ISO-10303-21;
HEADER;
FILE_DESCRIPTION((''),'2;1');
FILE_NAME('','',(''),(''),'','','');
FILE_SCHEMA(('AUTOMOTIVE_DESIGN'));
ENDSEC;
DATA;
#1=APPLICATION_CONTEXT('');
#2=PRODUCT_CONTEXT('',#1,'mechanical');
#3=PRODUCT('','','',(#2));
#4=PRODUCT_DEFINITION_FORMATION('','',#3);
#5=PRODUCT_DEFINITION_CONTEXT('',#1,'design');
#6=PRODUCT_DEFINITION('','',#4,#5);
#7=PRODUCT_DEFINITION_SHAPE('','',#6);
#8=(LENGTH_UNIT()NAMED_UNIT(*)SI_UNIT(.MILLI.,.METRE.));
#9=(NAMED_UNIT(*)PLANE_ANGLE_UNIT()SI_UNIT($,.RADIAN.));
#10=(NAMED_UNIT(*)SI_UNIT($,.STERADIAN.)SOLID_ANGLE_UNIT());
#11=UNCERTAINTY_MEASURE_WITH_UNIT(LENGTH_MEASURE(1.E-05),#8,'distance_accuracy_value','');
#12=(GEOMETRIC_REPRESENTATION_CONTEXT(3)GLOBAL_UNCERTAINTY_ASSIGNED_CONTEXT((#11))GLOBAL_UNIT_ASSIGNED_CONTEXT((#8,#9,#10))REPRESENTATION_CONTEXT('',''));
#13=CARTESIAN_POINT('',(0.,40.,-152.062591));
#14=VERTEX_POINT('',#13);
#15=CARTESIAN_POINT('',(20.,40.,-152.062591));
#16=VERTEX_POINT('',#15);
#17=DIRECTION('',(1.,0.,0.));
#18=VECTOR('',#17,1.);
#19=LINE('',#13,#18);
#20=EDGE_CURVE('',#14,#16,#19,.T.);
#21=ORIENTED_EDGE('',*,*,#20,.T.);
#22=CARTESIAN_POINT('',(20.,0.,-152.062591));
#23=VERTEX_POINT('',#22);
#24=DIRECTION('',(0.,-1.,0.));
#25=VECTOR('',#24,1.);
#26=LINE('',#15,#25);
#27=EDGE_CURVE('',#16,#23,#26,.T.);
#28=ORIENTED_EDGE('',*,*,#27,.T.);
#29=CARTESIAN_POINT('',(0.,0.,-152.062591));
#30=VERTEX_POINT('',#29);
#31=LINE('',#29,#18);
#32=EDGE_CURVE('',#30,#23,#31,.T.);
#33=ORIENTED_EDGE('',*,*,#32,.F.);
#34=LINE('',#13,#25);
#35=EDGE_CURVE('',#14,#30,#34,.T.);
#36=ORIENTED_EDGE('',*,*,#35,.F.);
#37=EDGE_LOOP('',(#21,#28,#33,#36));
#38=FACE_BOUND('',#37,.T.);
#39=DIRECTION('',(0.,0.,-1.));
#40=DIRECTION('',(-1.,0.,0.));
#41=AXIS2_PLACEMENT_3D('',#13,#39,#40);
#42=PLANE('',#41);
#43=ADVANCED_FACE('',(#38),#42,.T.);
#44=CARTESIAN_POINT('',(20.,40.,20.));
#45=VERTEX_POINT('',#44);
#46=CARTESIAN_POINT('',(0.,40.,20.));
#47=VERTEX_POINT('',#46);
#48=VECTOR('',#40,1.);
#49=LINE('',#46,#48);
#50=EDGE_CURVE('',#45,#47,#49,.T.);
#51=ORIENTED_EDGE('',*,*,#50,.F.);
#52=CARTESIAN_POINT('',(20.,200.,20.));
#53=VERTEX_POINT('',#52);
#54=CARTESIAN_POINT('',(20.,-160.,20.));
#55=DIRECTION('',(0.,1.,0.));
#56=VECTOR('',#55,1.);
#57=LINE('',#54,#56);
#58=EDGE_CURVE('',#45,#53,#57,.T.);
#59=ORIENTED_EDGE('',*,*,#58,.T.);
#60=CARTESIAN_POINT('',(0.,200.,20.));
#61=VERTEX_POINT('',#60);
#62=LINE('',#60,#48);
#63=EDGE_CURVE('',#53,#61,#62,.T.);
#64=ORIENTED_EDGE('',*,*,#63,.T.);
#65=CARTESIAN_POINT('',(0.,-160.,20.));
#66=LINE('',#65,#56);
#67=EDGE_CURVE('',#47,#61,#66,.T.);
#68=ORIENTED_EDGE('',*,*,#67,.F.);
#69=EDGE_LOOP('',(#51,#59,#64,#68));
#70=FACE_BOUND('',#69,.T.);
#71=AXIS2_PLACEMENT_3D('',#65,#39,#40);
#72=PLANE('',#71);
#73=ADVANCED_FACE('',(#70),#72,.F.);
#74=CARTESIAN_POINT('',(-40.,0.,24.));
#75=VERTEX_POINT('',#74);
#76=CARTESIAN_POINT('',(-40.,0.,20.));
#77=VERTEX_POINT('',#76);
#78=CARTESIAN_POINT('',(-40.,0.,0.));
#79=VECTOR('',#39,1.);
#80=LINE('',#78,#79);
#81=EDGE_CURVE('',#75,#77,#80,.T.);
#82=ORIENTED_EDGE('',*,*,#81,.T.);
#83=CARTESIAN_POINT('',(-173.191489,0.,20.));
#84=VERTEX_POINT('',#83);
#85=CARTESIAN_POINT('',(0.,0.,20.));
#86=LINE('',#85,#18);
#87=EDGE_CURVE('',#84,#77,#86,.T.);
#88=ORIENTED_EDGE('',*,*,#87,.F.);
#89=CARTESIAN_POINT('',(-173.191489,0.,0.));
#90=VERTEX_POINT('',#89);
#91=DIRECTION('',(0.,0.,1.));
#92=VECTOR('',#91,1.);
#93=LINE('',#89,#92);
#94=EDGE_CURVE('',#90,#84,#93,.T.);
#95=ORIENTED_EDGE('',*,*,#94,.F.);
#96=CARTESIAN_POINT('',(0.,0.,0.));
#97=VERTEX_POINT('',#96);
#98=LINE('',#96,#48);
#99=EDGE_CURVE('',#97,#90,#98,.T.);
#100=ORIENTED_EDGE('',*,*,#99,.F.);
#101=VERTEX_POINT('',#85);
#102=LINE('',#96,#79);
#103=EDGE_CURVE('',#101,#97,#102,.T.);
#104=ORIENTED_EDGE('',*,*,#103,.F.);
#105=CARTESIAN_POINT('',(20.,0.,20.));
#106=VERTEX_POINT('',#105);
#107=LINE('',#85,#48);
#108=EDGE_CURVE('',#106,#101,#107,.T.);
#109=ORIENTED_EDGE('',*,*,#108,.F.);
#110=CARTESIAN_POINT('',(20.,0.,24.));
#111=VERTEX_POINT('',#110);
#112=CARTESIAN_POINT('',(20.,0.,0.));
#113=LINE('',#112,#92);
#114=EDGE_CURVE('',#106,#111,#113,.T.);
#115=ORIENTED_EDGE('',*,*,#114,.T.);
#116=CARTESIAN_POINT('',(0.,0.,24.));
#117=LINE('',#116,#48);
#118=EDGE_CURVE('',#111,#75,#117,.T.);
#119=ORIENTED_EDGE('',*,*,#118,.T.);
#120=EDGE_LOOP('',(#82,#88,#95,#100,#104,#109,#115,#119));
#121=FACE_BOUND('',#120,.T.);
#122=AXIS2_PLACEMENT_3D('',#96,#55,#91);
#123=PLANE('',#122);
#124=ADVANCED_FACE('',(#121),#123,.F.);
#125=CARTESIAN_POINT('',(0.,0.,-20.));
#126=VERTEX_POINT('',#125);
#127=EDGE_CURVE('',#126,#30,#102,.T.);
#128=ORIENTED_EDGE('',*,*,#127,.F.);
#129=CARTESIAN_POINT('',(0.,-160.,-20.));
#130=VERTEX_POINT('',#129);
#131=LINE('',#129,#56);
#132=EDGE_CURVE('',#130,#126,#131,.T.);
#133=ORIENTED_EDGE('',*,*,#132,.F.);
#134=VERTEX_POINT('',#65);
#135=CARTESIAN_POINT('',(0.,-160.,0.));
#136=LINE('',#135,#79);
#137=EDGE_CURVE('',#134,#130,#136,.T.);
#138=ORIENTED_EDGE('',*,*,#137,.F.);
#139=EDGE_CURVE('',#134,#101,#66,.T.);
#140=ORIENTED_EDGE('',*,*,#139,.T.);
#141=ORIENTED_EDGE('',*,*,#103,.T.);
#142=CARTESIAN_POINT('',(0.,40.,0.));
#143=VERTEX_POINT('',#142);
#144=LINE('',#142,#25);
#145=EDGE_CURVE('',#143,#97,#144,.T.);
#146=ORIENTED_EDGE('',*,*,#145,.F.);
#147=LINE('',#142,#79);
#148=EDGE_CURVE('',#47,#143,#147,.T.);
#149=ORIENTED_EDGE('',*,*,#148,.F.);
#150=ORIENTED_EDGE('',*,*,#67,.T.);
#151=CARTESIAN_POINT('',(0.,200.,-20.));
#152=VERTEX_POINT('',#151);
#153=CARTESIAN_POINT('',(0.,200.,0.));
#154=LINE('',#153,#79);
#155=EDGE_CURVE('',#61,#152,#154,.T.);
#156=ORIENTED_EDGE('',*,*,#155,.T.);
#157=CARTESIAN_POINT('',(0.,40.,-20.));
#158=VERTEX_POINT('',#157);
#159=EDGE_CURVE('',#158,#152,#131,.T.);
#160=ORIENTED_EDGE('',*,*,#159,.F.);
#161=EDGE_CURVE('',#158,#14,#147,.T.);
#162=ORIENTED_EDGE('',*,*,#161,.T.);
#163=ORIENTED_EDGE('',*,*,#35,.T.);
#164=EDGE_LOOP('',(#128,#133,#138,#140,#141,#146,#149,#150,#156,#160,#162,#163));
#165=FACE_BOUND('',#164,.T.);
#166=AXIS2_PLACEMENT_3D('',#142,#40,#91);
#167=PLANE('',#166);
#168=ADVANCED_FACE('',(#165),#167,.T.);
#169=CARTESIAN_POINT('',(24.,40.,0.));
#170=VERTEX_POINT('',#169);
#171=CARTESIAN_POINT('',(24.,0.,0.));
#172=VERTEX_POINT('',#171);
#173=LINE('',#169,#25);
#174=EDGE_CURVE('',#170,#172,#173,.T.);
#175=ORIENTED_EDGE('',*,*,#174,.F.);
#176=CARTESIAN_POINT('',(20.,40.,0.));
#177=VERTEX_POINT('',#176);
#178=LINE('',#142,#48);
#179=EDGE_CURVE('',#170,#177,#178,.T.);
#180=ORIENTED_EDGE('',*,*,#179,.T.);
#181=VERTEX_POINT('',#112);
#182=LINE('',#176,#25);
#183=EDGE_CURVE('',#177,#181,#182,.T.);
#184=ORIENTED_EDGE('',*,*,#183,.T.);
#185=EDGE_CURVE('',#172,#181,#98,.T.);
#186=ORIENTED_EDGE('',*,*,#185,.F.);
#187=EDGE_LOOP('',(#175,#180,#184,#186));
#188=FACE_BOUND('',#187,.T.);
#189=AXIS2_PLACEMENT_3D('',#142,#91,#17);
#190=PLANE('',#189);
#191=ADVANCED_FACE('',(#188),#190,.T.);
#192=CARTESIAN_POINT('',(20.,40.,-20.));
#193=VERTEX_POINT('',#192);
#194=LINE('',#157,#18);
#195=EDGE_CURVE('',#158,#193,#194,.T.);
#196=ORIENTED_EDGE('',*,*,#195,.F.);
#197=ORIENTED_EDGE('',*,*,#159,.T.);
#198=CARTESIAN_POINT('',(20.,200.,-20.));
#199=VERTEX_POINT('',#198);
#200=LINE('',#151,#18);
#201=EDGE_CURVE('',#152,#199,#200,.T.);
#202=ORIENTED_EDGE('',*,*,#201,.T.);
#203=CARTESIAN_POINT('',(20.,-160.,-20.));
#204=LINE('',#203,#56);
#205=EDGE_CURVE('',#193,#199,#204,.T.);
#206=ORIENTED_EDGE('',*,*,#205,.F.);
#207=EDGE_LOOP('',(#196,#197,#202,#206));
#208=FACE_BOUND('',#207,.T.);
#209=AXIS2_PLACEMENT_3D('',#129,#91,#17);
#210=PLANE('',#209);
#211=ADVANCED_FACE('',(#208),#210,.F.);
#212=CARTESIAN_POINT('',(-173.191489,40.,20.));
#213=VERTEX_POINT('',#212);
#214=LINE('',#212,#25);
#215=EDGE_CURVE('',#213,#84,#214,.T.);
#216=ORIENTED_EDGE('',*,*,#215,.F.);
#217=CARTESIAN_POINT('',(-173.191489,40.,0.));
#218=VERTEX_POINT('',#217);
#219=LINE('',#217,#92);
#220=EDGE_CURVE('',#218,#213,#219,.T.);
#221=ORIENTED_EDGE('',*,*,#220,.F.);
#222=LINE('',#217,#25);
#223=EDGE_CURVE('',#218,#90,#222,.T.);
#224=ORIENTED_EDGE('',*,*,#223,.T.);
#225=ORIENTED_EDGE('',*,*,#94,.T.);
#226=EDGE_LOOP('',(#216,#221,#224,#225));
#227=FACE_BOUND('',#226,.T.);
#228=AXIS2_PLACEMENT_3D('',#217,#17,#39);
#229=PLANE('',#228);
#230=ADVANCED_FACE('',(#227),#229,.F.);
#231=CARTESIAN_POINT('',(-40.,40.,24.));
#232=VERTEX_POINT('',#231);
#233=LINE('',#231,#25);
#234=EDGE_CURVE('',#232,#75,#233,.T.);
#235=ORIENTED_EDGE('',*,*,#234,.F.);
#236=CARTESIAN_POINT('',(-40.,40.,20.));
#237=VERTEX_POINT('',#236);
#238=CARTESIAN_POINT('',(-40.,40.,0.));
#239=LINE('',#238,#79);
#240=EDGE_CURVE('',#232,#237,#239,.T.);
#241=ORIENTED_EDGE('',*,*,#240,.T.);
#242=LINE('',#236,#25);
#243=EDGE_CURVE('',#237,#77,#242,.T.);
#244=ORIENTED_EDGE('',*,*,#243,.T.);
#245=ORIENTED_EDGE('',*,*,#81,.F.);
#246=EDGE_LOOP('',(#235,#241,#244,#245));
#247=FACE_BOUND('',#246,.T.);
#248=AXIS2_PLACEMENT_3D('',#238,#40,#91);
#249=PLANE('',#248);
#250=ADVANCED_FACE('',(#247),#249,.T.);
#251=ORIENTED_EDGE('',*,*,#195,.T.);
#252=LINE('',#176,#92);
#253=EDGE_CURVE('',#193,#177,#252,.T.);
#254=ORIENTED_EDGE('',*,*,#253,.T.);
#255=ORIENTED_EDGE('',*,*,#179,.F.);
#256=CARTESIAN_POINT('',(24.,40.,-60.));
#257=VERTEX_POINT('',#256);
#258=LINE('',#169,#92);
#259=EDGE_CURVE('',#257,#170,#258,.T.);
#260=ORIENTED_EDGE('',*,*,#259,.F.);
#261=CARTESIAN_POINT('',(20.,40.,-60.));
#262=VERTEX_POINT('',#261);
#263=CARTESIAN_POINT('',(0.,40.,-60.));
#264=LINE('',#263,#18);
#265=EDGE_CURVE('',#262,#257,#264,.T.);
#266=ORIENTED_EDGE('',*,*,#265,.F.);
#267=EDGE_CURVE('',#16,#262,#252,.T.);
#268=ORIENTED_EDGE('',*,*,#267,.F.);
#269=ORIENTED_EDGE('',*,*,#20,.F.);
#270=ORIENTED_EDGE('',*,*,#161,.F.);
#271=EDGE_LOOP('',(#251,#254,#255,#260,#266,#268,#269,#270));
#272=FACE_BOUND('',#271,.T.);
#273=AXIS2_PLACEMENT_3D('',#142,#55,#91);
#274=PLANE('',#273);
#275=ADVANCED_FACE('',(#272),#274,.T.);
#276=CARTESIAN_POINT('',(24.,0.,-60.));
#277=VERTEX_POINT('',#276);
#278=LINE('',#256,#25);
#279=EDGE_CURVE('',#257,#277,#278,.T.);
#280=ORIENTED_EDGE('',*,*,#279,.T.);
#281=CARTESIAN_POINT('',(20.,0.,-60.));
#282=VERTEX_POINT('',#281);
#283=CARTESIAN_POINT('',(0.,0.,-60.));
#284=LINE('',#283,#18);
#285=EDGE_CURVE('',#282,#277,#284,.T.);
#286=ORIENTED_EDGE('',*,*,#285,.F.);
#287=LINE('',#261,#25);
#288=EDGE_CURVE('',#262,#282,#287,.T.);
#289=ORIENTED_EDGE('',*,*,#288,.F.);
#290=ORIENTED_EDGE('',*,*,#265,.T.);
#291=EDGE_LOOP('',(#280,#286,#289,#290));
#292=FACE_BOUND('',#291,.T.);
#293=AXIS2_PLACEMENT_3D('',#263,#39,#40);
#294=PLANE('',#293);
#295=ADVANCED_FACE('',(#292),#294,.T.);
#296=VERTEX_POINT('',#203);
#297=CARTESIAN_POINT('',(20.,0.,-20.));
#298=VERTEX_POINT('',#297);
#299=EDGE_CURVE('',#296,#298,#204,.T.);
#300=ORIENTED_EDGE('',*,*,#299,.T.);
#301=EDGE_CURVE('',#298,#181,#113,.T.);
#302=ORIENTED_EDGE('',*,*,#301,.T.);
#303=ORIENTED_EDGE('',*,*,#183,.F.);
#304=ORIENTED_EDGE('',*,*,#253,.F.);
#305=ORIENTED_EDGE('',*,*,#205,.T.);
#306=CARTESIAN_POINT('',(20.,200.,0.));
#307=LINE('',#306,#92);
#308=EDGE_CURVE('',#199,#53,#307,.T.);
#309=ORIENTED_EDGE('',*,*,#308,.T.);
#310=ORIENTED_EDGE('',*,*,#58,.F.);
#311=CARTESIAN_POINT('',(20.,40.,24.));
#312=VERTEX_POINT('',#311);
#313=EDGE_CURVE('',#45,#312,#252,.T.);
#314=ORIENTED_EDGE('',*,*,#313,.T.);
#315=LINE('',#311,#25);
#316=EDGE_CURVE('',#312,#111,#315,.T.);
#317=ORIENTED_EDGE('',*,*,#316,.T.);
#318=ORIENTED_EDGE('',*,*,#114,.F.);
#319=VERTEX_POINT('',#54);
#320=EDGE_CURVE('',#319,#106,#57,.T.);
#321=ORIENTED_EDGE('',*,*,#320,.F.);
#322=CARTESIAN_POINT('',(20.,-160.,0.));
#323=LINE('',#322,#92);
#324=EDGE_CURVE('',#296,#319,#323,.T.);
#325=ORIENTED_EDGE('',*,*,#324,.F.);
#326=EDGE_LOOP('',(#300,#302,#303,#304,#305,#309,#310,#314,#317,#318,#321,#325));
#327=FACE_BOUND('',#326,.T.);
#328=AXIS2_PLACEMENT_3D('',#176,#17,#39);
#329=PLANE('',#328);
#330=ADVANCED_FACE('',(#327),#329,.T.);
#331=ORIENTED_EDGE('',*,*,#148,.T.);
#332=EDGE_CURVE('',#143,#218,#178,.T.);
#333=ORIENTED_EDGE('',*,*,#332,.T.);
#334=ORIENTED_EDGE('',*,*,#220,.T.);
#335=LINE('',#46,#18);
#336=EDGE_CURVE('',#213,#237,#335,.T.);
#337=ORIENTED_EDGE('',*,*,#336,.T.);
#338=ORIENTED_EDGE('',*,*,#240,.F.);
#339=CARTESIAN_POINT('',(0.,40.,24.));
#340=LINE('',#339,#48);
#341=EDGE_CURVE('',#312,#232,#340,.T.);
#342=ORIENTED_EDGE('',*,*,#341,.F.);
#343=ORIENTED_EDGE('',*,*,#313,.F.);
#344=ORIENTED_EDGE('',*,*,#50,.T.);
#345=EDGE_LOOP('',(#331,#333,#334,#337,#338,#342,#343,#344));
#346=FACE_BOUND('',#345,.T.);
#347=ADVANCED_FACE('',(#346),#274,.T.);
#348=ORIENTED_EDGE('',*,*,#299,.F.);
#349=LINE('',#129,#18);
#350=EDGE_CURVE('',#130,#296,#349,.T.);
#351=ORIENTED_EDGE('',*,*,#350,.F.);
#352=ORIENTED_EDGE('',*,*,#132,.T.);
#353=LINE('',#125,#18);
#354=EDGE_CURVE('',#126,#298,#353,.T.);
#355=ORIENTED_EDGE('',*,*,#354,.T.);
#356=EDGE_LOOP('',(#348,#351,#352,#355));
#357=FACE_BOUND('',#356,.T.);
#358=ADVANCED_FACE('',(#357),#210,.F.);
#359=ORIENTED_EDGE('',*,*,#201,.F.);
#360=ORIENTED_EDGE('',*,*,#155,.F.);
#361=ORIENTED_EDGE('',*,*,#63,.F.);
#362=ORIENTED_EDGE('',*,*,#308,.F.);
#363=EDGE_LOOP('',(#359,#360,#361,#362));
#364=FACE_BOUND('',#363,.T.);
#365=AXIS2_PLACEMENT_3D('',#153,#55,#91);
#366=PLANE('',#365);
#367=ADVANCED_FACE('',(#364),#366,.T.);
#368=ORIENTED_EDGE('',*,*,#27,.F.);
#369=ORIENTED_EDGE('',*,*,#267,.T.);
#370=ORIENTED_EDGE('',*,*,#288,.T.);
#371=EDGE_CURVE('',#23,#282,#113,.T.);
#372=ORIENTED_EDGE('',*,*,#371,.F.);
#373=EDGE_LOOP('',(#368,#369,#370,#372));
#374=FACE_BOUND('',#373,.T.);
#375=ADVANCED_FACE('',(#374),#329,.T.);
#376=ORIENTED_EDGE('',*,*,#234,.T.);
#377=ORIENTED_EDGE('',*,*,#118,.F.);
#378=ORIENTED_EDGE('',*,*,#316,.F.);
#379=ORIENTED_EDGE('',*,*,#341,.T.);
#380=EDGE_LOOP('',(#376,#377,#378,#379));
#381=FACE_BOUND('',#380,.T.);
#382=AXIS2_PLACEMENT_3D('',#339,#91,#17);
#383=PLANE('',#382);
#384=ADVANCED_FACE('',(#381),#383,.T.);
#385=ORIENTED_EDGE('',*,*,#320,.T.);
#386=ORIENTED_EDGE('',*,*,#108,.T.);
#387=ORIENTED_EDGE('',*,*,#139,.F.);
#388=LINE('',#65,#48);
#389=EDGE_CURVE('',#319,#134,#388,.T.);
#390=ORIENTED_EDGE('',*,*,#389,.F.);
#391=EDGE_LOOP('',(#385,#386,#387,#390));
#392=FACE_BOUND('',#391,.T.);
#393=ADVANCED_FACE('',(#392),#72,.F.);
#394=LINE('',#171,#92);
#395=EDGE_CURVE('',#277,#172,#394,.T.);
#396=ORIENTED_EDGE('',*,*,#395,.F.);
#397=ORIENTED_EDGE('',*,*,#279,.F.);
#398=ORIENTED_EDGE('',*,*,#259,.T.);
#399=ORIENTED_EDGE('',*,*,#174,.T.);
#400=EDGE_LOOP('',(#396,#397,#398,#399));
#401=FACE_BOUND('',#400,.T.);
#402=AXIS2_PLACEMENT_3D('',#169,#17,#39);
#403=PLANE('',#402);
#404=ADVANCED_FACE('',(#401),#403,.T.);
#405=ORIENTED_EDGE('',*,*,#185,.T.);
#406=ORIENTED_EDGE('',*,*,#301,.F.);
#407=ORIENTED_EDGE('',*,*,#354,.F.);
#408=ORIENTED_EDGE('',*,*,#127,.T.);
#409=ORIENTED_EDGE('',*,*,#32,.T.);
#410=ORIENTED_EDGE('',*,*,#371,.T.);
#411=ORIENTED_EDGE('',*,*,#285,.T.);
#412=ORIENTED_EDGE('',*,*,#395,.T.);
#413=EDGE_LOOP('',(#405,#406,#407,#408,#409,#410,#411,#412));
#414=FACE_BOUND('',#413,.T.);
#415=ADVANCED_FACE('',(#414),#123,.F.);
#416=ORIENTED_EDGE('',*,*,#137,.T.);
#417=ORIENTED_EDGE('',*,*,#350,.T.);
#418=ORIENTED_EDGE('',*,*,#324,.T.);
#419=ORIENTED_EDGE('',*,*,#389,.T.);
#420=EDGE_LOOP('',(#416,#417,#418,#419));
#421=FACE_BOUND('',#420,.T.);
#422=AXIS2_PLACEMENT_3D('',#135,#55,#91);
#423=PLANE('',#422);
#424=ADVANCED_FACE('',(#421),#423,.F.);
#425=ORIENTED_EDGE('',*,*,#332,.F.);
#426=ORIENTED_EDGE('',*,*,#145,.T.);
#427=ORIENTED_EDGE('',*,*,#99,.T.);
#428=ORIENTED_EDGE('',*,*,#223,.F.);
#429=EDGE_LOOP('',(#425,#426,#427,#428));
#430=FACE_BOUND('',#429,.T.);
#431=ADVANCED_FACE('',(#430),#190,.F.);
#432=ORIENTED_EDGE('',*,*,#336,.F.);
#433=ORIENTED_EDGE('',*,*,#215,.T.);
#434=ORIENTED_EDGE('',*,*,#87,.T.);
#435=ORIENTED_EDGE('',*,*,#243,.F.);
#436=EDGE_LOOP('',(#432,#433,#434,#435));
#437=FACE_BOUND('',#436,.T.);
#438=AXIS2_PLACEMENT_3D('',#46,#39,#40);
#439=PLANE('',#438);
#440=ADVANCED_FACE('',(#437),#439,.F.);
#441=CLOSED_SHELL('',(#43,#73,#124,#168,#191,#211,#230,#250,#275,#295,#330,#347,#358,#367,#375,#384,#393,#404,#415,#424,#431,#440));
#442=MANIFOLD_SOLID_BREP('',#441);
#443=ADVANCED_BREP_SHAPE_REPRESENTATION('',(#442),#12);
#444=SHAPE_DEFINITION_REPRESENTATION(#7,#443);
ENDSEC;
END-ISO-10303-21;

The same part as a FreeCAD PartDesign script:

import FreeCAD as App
import Part
import Sketcher
from FreeCAD import Vector

doc = App.newDocument("Part")
body = doc.addObject("PartDesign::Body", "Body")

# Sketch on XZ plane
sketch1 = body.newObject("Sketcher::SketchObject", "Sketch")
sketch1.AttachmentSupport = (doc.getObject("XZ_Plane"), [""])
sketch1.MapMode = "FlatFace"
sketch1.addGeometry(Part.LineSegment(Vector(0, -152.1, 0), Vector(0, 0, 0)), False)
sketch1.addGeometry(Part.LineSegment(Vector(0, 0, 0), Vector(-173.2, 0, 0)), False)
sketch1.addGeometry(Part.LineSegment(Vector(-173.2, 0, 0), Vector(-173.2, 20, 0)), False)
sketch1.addGeometry(Part.LineSegment(Vector(-173.2, 20, 0), Vector(-40, 20, 0)), False)
sketch1.addGeometry(Part.LineSegment(Vector(-40, 20, 0), Vector(-40, 24, 0)), False)
sketch1.addGeometry(Part.LineSegment(Vector(-40, 24, 0), Vector(20, 24, 0)), False)
sketch1.addGeometry(Part.LineSegment(Vector(20, 24, 0), Vector(20, 0, 0)), False)
sketch1.addGeometry(Part.LineSegment(Vector(20, 0, 0), Vector(24, 0, 0)), False)
sketch1.addGeometry(Part.LineSegment(Vector(24, 0, 0), Vector(24, -60, 0)), False)
sketch1.addGeometry(Part.LineSegment(Vector(24, -60, 0), Vector(20, -60, 0)), False)
sketch1.addGeometry(Part.LineSegment(Vector(20, -60, 0), Vector(20, -152.1, 0)), False)
sketch1.addGeometry(Part.LineSegment(Vector(20, -152.1, 0), Vector(0, -152.1, 0)), False)
sketch1.addConstraint(Sketcher.Constraint("Coincident", 0, 2, 1, 1))
sketch1.addConstraint(Sketcher.Constraint("Coincident", 1, 2, 2, 1))
sketch1.addConstraint(Sketcher.Constraint("Coincident", 2, 2, 3, 1))
sketch1.addConstraint(Sketcher.Constraint("Coincident", 3, 2, 4, 1))
sketch1.addConstraint(Sketcher.Constraint("Coincident", 4, 2, 5, 1))
sketch1.addConstraint(Sketcher.Constraint("Coincident", 5, 2, 6, 1))
sketch1.addConstraint(Sketcher.Constraint("Coincident", 6, 2, 7, 1))
sketch1.addConstraint(Sketcher.Constraint("Coincident", 7, 2, 8, 1))
sketch1.addConstraint(Sketcher.Constraint("Coincident", 8, 2, 9, 1))
sketch1.addConstraint(Sketcher.Constraint("Coincident", 9, 2, 10, 1))
sketch1.addConstraint(Sketcher.Constraint("Coincident", 10, 2, 11, 1))
sketch1.addConstraint(Sketcher.Constraint("Coincident", 11, 2, 0, 1))
sketch1.addConstraint(Sketcher.Constraint("Vertical", 0))
sketch1.addConstraint(Sketcher.Constraint("Horizontal", 1))
sketch1.addConstraint(Sketcher.Constraint("Vertical", 2))
sketch1.addConstraint(Sketcher.Constraint("Horizontal", 3))
sketch1.addConstraint(Sketcher.Constraint("Vertical", 4))
sketch1.addConstraint(Sketcher.Constraint("Horizontal", 5))
sketch1.addConstraint(Sketcher.Constraint("Vertical", 6))
sketch1.addConstraint(Sketcher.Constraint("Horizontal", 7))
sketch1.addConstraint(Sketcher.Constraint("Vertical", 8))
sketch1.addConstraint(Sketcher.Constraint("Horizontal", 9))
sketch1.addConstraint(Sketcher.Constraint("Vertical", 10))
sketch1.addConstraint(Sketcher.Constraint("Horizontal", 11))
sketch1.addConstraint(Sketcher.Constraint("Coincident", 0, 2, -1, 1))
sketch1.addConstraint(Sketcher.Constraint("PointOnObject", 6, 2, -1))
sketch1.addConstraint(Sketcher.Constraint("Vertical", 6, 2, 9, 2))
sketch1.addConstraint(Sketcher.Constraint("Equal", 11, 2))
sketch1.addConstraint(Sketcher.Constraint("Equal", 9, 4))
sketch1.addConstraint(Sketcher.Constraint("Equal", 5, 8))
sketch1.addConstraint(Sketcher.Constraint("DistanceX", 5, 1, 5, 2, 60.0))
sketch1.addConstraint(Sketcher.Constraint("DistanceX", 7, 1, 7, 2, 4.0))
sketch1.addConstraint(Sketcher.Constraint("DistanceX", 11, 2, 11, 1, 20.0))
sketch1.addConstraint(Sketcher.Constraint("DistanceX", 1, 2, 1, 1, 173.191489))
sketch1.addConstraint(Sketcher.Constraint("DistanceY", 0, 1, 0, 2, 152.062591))
pad1 = body.newObject("PartDesign::Pad", "Pad")
pad1.Profile = sketch1
pad1.Length = 40
pad1.Reversed = True

# Sketch on XZ plane
sketch2 = body.newObject("Sketcher::SketchObject", "Sketch001")
sketch2.AttachmentSupport = (doc.getObject("XZ_Plane"), [""])
sketch2.MapMode = "FlatFace"
sketch2.addGeometry(Part.LineSegment(Vector(0, 20, 0), Vector(20, 20, 0)), False)
sketch2.addGeometry(Part.LineSegment(Vector(20, 20, 0), Vector(20, -20, 0)), False)
sketch2.addGeometry(Part.LineSegment(Vector(20, -20, 0), Vector(0, -20, 0)), False)
sketch2.addGeometry(Part.LineSegment(Vector(0, -20, 0), Vector(0, 20, 0)), False)
sketch2.addConstraint(Sketcher.Constraint("Coincident", 0, 2, 1, 1))
sketch2.addConstraint(Sketcher.Constraint("Coincident", 1, 2, 2, 1))
sketch2.addConstraint(Sketcher.Constraint("Coincident", 2, 2, 3, 1))
sketch2.addConstraint(Sketcher.Constraint("Coincident", 3, 2, 0, 1))
sketch2.addConstraint(Sketcher.Constraint("Horizontal", 0))
sketch2.addConstraint(Sketcher.Constraint("Vertical", 1))
sketch2.addConstraint(Sketcher.Constraint("Horizontal", 2))
sketch2.addConstraint(Sketcher.Constraint("Vertical", 3))
sketch2.addConstraint(Sketcher.Constraint("Symmetric", 2, 2, 3, 2, -1, 1))
sketch2.addConstraint(Sketcher.Constraint("DistanceX", 0, 1, 0, 2, 20.0))
sketch2.addConstraint(Sketcher.Constraint("DistanceY", 1, 2, 1, 1, 40.0))
pad2 = body.newObject("PartDesign::Pad", "Pad001")
pad2.Profile = sketch2
pad2.Type = "TwoLengths"
pad2.Length = 200
pad2.Length2 = 160
pad2.Reversed = True

doc.recompute()
